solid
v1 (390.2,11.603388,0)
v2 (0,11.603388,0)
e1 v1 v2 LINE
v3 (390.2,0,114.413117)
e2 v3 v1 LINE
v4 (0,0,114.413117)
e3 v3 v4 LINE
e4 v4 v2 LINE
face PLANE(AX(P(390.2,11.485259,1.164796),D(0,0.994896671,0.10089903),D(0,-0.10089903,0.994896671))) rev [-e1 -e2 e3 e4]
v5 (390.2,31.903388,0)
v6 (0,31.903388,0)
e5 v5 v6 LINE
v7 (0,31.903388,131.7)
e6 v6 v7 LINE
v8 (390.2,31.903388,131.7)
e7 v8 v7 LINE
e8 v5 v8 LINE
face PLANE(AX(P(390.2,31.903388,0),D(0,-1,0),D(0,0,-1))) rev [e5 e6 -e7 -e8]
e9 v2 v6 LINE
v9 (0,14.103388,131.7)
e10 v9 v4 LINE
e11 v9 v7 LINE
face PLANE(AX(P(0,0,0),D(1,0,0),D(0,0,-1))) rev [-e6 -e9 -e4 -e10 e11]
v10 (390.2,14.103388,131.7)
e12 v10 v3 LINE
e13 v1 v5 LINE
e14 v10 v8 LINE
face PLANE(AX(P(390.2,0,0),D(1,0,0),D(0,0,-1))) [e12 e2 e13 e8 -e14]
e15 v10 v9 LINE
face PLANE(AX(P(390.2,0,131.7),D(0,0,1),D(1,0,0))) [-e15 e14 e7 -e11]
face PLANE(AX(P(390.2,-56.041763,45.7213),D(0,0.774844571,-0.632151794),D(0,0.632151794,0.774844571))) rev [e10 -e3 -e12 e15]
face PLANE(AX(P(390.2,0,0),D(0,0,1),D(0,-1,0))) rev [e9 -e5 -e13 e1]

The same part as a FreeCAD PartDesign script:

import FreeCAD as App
import Part
import Sketcher
from FreeCAD import Vector
Q = App.Units.Quantity


def add_polygon(sketch, points):
    """Adds a closed chain of lines whose ends are joined by coincident constraints."""
    first, n = sketch.GeometryCount, len(points)
    for a, b in zip(points, points[1:] + points[:1]):
        sketch.addGeometry(Part.LineSegment(App.Vector(*a, 0), App.Vector(*b, 0)), False)
    for i in range(n):
        sketch.addConstraint(Sketcher.Constraint("Coincident", first + i, 2, first + (i + 1) % n, 1))

doc = App.newDocument("Part")
params = doc.addObject("Spreadsheet::Sheet", "Params")
for row, (alias, value) in enumerate([
    ("sketch1_length", "115 mm"),
    ("sketch1_width", "17.8 mm"),
    ("sketch1_width2", "20.3 mm"),
    ("sketch1_height", "131.7 mm"),
    ("pad1_length", "390.2 mm"),
], start=1):
    params.set(f"A{row}", alias)
    params.set(f"B{row}", "=" + value)
    params.setAlias(f"B{row}", alias)

body = doc.addObject("PartDesign::Body", "Body")

sketch1 = body.newObject("Sketcher::SketchObject", "Sketch")
sketch1.AttachmentSupport = (doc.getObject("YZ_Plane"), [""])
sketch1.MapMode = "FlatFace"
add_polygon(sketch1, [(32, 132), (14, 132), (0, 114), (12, 0), (32, 0)])
sketch1.addConstraint([
    Sketcher.Constraint("Horizontal", 0),
    Sketcher.Constraint("Horizontal", 3),
    Sketcher.Constraint("Vertical", 4),
    Sketcher.Constraint("PointOnObject", 1, 2, -2),
    Sketcher.Constraint("PointOnObject", 2, 2, -1),
    Sketcher.Constraint("Distance", 2, Q("115 mm")),
    Sketcher.Constraint("DistanceX", 0, 2, 0, 1, Q("17.8 mm")),
    Sketcher.Constraint("DistanceX", 3, 1, 3, 2, Q("20.3 mm")),
    Sketcher.Constraint("DistanceY", 4, 1, 4, 2, Q("131.7 mm")),
    Sketcher.Constraint("Distance", 1, Q("22.31013 mm")),
])
sketch1.setExpression("Constraints[10]", "Params.sketch1_length")
sketch1.setExpression("Constraints[11]", "Params.sketch1_width")
sketch1.setExpression("Constraints[12]", "Params.sketch1_width2")
sketch1.setExpression("Constraints[13]", "Params.sketch1_height")
pad1 = body.newObject("PartDesign::Pad", "Pad")
pad1.Profile = sketch1
pad1.setExpression("Length", "Params.pad1_length")

doc.recompute()
